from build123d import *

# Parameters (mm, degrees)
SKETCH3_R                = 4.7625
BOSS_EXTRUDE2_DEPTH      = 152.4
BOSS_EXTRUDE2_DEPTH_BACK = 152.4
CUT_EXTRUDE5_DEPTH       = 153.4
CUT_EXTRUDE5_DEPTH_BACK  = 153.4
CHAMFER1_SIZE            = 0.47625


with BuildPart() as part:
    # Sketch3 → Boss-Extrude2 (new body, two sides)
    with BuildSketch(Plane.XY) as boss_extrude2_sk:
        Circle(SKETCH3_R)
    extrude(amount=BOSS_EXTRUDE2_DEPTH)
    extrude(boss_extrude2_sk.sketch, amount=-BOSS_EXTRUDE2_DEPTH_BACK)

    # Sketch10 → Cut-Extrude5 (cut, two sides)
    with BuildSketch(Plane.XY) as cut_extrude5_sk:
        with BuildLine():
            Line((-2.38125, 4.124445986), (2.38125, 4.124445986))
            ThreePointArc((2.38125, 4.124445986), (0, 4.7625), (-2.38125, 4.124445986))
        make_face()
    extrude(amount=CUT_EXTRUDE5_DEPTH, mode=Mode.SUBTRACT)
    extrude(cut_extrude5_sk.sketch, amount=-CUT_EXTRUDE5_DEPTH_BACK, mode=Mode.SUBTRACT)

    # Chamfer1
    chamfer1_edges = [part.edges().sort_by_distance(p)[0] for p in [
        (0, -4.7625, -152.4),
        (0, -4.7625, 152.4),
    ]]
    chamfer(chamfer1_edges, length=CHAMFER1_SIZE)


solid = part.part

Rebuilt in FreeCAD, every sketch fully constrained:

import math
import FreeCAD as App
import Part
import Sketcher
from FreeCAD import Vector
Q = App.Units.Quantity


def edges_at(feature, points):
    """Names of the edges that pass closest to the given points."""
    edges = feature.Shape.Edges
    near = lambda p: min(range(len(edges)), key=lambda i: edges[i].distToShape(Part.Vertex(*p))[0])
    return sorted({f"Edge{near(p) + 1}" for p in points})

doc = App.newDocument("Part")
body = doc.addObject("PartDesign::Body", "Body")

sketch1 = doc.addObject("Sketcher::SketchObject", "Sketch")
body.addObject(sketch1)
sketch1.AttachmentSupport = (doc.XY_Plane, [""])
sketch1.MapMode = "FlatFace"
sketch1.addGeometry(Part.Circle(Vector(0, 0, 0), Vector(0, 0, 1), 4.7625), False)
sketch1.addConstraint(Sketcher.Constraint("Coincident", 0, 3, -1, 1))
sketch1.addConstraint(Sketcher.Constraint("Diameter", 0, Q("0.375 in")))
pad1 = doc.addObject("PartDesign::Pad", "Pad")
body.addObject(pad1)
pad1.Profile = sketch1
pad1.Type = "TwoLengths"
pad1.Length = Q("6 in")
pad1.Length2 = Q("6 in")

sketch2 = doc.addObject("Sketcher::SketchObject", "Sketch001")
body.addObject(sketch2)
sketch2.AttachmentSupport = (doc.XY_Plane, [""])
sketch2.MapMode = "FlatFace"
sketch2.addGeometry(Part.LineSegment(Vector(-2.38125, 4.124446, 0), Vector(2.38125, 4.124446, 0)), False)
sketch2.addGeometry(Part.ArcOfCircle(Part.Circle(Vector(0, 0, 0), Vector(0, 0, 1), 4.7625), math.radians(60), math.radians(120)), False)
sketch2.addConstraint(Sketcher.Constraint("Coincident", 0, 1, 1, 2))
sketch2.addConstraint(Sketcher.Constraint("Coincident", 1, 1, 0, 2))
sketch2.addConstraint(Sketcher.Constraint("Horizontal", 0))
sketch2.addConstraint(Sketcher.Constraint("Coincident", 1, 3, -1, 1))
sketch2.addConstraint(Sketcher.Constraint("Radius", 1, Q("0.1875 in")))
sketch2.addConstraint(Sketcher.Constraint("DistanceX", 0, 1, 0, 2, Q("0.1875 in")))
pocket1 = doc.addObject("PartDesign::Pocket", "Pocket")
body.addObject(pocket1)
pocket1.Profile = sketch2
pocket1.Type = "ThroughAll"
pocket1.Midplane = True
doc.recompute()

chamfer = doc.addObject("PartDesign::Chamfer", "Chamfer")
body.addObject(chamfer)
chamfer.Base = (pocket1, edges_at(pocket1, [(0, -4.763, -152.4), (0, -4.763, 152.4)]))
chamfer.Size = 0.47625

doc.recompute()
